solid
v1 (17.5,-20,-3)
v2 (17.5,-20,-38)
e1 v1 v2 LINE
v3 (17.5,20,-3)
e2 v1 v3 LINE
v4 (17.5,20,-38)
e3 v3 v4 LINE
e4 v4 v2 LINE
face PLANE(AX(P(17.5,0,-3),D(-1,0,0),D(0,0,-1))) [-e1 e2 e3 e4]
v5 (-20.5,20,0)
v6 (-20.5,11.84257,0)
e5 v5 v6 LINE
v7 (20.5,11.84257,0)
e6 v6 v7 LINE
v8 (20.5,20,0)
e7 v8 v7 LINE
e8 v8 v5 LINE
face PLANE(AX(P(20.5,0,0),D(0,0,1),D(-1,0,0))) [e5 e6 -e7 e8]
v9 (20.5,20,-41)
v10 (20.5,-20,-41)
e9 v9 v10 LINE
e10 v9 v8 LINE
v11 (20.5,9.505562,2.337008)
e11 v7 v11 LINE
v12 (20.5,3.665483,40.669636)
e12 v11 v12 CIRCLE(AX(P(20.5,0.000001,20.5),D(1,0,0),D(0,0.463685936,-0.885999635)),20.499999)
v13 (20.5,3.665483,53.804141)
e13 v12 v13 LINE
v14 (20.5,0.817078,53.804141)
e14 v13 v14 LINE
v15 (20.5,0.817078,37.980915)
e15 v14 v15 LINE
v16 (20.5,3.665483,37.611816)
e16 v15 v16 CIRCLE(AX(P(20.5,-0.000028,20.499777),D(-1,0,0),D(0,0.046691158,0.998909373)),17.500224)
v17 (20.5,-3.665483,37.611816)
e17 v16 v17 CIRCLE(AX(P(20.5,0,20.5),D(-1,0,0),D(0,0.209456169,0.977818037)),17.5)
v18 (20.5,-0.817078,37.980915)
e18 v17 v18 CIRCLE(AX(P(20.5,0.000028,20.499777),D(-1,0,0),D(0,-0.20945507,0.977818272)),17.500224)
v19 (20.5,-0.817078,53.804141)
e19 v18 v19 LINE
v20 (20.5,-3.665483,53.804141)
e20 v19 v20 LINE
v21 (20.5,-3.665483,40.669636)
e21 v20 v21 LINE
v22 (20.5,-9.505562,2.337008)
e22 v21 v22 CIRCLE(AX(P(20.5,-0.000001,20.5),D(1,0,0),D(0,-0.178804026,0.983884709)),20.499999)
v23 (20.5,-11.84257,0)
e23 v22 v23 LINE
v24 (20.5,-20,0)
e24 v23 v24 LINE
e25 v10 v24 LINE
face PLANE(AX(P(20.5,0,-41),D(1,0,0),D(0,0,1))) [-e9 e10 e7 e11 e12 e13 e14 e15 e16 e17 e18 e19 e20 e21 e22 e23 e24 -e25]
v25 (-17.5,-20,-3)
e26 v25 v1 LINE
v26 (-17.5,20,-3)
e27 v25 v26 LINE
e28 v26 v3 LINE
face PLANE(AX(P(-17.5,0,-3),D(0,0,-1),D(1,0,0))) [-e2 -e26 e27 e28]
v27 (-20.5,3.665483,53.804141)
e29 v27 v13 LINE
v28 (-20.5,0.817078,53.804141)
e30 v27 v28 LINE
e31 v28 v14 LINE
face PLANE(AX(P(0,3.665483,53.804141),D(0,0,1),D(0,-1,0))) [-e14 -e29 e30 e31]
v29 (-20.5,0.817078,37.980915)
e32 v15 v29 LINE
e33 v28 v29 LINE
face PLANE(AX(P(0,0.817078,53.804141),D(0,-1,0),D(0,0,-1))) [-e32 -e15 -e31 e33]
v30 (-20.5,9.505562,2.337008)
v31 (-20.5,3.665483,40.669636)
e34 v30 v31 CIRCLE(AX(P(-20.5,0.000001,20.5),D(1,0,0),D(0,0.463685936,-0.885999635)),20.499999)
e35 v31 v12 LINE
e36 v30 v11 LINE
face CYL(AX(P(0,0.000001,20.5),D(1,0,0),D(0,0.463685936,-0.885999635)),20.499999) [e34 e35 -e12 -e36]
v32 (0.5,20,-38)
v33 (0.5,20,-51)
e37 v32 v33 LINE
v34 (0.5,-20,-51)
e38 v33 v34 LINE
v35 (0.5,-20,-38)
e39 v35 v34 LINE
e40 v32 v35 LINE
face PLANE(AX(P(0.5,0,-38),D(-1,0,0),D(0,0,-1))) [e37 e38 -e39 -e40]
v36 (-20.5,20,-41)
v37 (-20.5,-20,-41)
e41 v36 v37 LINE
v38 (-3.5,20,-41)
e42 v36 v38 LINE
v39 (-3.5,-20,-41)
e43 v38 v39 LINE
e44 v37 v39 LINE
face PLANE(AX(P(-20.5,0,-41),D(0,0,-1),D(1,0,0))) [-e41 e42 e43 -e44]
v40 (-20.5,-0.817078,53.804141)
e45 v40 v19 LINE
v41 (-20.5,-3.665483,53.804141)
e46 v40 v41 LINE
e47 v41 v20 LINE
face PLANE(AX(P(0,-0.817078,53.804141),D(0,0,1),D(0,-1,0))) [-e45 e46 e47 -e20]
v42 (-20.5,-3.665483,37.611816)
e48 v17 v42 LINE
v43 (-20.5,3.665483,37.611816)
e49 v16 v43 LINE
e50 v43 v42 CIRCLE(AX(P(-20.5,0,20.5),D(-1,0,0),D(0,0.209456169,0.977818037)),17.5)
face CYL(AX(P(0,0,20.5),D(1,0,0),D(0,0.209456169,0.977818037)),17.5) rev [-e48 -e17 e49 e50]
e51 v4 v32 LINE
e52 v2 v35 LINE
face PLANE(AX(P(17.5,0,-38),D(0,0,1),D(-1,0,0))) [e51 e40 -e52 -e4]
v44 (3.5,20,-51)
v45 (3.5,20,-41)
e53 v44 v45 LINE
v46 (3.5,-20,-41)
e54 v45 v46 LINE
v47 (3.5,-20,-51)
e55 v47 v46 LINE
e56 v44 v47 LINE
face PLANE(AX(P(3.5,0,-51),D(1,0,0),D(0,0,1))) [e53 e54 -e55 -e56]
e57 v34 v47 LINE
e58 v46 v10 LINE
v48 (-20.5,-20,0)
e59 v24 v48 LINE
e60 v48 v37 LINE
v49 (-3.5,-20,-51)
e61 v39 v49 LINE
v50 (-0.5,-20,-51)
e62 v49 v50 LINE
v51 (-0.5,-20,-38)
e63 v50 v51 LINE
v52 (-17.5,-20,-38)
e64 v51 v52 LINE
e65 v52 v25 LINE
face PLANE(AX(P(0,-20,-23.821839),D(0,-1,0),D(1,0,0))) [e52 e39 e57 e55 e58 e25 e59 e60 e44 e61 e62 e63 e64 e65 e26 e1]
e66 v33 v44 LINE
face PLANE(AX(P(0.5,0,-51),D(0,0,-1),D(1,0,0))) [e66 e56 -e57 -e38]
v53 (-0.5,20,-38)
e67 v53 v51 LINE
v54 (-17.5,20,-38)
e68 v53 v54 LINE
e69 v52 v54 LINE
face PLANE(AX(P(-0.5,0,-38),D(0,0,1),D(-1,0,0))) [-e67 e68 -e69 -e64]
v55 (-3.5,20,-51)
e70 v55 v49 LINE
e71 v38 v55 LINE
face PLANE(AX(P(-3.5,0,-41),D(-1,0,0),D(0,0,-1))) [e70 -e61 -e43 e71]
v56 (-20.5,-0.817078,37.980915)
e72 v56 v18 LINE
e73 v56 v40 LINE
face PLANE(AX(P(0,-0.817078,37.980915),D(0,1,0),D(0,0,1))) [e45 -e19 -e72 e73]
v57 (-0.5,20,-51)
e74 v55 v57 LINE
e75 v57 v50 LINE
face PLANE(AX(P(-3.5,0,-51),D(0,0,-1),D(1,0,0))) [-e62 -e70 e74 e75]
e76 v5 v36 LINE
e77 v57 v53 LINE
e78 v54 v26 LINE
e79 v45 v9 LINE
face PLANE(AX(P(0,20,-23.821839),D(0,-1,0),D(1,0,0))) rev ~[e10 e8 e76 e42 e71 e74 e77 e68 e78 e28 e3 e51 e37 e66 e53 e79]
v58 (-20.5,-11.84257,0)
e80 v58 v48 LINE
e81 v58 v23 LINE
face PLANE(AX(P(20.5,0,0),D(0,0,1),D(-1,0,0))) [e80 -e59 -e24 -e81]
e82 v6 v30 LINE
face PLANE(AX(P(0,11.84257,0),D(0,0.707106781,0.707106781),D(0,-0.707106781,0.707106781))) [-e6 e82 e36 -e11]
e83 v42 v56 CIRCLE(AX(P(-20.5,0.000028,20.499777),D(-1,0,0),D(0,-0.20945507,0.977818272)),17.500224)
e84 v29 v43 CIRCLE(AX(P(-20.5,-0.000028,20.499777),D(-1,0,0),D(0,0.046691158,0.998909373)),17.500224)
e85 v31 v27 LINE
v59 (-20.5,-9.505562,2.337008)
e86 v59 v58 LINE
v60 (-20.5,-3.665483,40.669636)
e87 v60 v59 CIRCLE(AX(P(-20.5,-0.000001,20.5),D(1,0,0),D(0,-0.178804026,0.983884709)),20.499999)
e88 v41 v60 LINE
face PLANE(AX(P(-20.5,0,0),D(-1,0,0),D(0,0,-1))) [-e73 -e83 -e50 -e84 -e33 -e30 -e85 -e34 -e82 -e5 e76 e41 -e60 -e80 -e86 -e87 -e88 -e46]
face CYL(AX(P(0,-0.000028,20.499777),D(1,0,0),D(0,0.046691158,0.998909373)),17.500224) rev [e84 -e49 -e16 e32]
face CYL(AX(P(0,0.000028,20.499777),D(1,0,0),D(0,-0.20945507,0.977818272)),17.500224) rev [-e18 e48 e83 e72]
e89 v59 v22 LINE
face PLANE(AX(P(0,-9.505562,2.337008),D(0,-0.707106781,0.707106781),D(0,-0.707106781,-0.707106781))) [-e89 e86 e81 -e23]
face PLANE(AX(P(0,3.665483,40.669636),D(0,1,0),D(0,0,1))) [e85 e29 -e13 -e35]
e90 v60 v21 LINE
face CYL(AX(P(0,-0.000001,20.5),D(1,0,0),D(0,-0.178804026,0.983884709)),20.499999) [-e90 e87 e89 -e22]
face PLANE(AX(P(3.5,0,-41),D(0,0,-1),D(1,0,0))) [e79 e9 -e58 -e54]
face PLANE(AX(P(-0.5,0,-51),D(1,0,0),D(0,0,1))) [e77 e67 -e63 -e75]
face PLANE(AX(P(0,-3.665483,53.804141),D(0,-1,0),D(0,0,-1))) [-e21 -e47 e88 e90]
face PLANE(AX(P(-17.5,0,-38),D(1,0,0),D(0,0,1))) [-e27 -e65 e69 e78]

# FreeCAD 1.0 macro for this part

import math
import FreeCAD as App
import Part
import Sketcher


def add_polygon(sketch, points):
    """Adds a closed chain of lines whose ends are joined by coincident constraints."""
    first, n = sketch.GeometryCount, len(points)
    for a, b in zip(points, points[1:] + points[:1]):
        sketch.addGeometry(Part.LineSegment(App.Vector(*a, 0), App.Vector(*b, 0)), False)
    for i in range(n):
        sketch.addConstraint(Sketcher.Constraint("Coincident", first + i, 2, first + (i + 1) % n, 1))

doc = App.newDocument("Part")
body = doc.addObject("PartDesign::Body", "Body")

# Sketch on XZ plane
sketch1 = doc.addObject("Sketcher::SketchObject", "Sketch")
body.addObject(sketch1)
sketch1.AttachmentSupport = (doc.XZ_Plane, [""])
sketch1.MapMode = "FlatFace"
add_polygon(sketch1, [(17.5, -3), (17.5, -38), (0.5, -38), (0.5, -51), (3.5, -51), (3.5, -41), (20.5, -41), (20.5, 0), (-20.5, 0), (-20.5, -41), (-3.5, -41), (-3.5, -51), (-0.5, -51), (-0.5, -38), (-17.5, -38), (-17.5, -3)])  # lines 0-15
sketch1.addConstraint(Sketcher.Constraint("Vertical", 0))
sketch1.addConstraint(Sketcher.Constraint("Horizontal", 1))
sketch1.addConstraint(Sketcher.Constraint("Vertical", 2))
sketch1.addConstraint(Sketcher.Constraint("Horizontal", 3))
sketch1.addConstraint(Sketcher.Constraint("Vertical", 4))
sketch1.addConstraint(Sketcher.Constraint("Horizontal", 5))
sketch1.addConstraint(Sketcher.Constraint("Vertical", 6))
sketch1.addConstraint(Sketcher.Constraint("Horizontal", 7))
sketch1.addConstraint(Sketcher.Constraint("Vertical", 8))
sketch1.addConstraint(Sketcher.Constraint("Horizontal", 9))
sketch1.addConstraint(Sketcher.Constraint("Vertical", 10))
sketch1.addConstraint(Sketcher.Constraint("Horizontal", 11))
sketch1.addConstraint(Sketcher.Constraint("Vertical", 12))
sketch1.addConstraint(Sketcher.Constraint("Horizontal", 13))
sketch1.addConstraint(Sketcher.Constraint("Vertical", 14))
sketch1.addConstraint(Sketcher.Constraint("Horizontal", 15))
sketch1.addConstraint(Sketcher.Constraint("Symmetric", 6, 2, 7, 2, -1, 1))
sketch1.addConstraint(Sketcher.Constraint("Symmetric", 4, 2, 9, 2, -2))
sketch1.addConstraint(Sketcher.Constraint("Symmetric", 2, 2, 11, 2, -2))
sketch1.addConstraint(Sketcher.Constraint("Symmetric", 0, 2, 13, 2, -2))
sketch1.addConstraint(Sketcher.Constraint("Equal", 1, 5))
sketch1.addConstraint(Sketcher.Constraint("Equal", 15, 0))
sketch1.addConstraint(Sketcher.Constraint("Equal", 7, 6))
sketch1.addConstraint(Sketcher.Constraint("DistanceX", 1, 2, 1, 1, 17.0))
sketch1.addConstraint(Sketcher.Constraint("DistanceX", 3, 1, 3, 2, 3.0))
sketch1.addConstraint(Sketcher.Constraint("DistanceX", 7, 2, 7, 1, 41.0))
sketch1.addConstraint(Sketcher.Constraint("DistanceY", 2, 2, 2, 1, 13.0))
sketch1.addConstraint(Sketcher.Constraint("DistanceY", 4, 1, 4, 2, 10.0))
pad1 = doc.addObject("PartDesign::Pad", "Pad")
body.addObject(pad1)
pad1.Profile = sketch1
pad1.Length = 40
pad1.Midplane = True

# Sketch on YZ plane
sketch2 = doc.addObject("Sketcher::SketchObject", "Sketch001")
body.addObject(sketch2)
sketch2.AttachmentSupport = (doc.YZ_Plane, [""])
sketch2.MapMode = "FlatFace"
sketch2.addGeometry(Part.ArcOfCircle(Part.Circle(App.Vector(0, 20.5, 0), App.Vector(0, 0, 1), 17.5), math.radians(92.68), math.radians(102.09)), False)
sketch2.addGeometry(Part.LineSegment(App.Vector(-0.8, 38, 0), App.Vector(-0.8, 53.8, 0)), False)
sketch2.addGeometry(Part.LineSegment(App.Vector(-0.8, 53.8, 0), App.Vector(-3.7, 53.8, 0)), False)
sketch2.addGeometry(Part.LineSegment(App.Vector(-3.7, 53.8, 0), App.Vector(-3.7, 40.7, 0)), False)
sketch2.addGeometry(Part.ArcOfCircle(Part.Circle(App.Vector(0, 20.5, 0), App.Vector(0, 0, 1), 20.5), math.radians(100), math.radians(242)), False)
sketch2.addGeometry(Part.LineSegment(App.Vector(-9.5, 2.3, 0), App.Vector(-11.8, 0, 0)), False)
sketch2.addGeometry(Part.LineSegment(App.Vector(-11.8, 0, 0), App.Vector(11.8, 0, 0)), False)
sketch2.addGeometry(Part.LineSegment(App.Vector(11.8, 0, 0), App.Vector(9.5, 2.3, 0)), False)
sketch2.addGeometry(Part.ArcOfCircle(Part.Circle(App.Vector(0, 20.5, 0), App.Vector(0, 0, 1), 20.5), math.radians(-62), math.radians(80)), False)
sketch2.addGeometry(Part.LineSegment(App.Vector(3.7, 40.7, 0), App.Vector(3.7, 53.8, 0)), False)
sketch2.addGeometry(Part.LineSegment(App.Vector(3.7, 53.8, 0), App.Vector(0.8, 53.8, 0)), False)
sketch2.addGeometry(Part.LineSegment(App.Vector(0.8, 53.8, 0), App.Vector(0.8, 38, 0)), False)
sketch2.addGeometry(Part.ArcOfCircle(Part.Circle(App.Vector(0, 20.5, 0), App.Vector(0, 0, 1), 17.5), math.radians(77.91), math.radians(87.32)), False)
sketch2.addGeometry(Part.ArcOfCircle(Part.Circle(App.Vector(0, 20.5, 0), App.Vector(0, 0, 1), 17.5), math.radians(102), math.radians(438)), False)
sketch2.addConstraint(Sketcher.Constraint("Coincident", 0, 1, 1, 1))
sketch2.addConstraint(Sketcher.Constraint("Coincident", 1, 2, 2, 1))
sketch2.addConstraint(Sketcher.Constraint("Coincident", 2, 2, 3, 1))
sketch2.addConstraint(Sketcher.Constraint("Coincident", 3, 2, 4, 1))
sketch2.addConstraint(Sketcher.Constraint("Coincident", 4, 2, 5, 1))
sketch2.addConstraint(Sketcher.Constraint("Coincident", 5, 2, 6, 1))
sketch2.addConstraint(Sketcher.Constraint("Coincident", 6, 2, 7, 1))
sketch2.addConstraint(Sketcher.Constraint("Coincident", 7, 2, 8, 1))
sketch2.addConstraint(Sketcher.Constraint("Coincident", 8, 2, 9, 1))
sketch2.addConstraint(Sketcher.Constraint("Coincident", 9, 2, 10, 1))
sketch2.addConstraint(Sketcher.Constraint("Coincident", 10, 2, 11, 1))
sketch2.addConstraint(Sketcher.Constraint("Coincident", 11, 2, 12, 2))
sketch2.addConstraint(Sketcher.Constraint("Tangent", 12, 1, 13, 2))
sketch2.addConstraint(Sketcher.Constraint("Tangent", 13, 1, 0, 2))
sketch2.addConstraint(Sketcher.Constraint("Vertical", 1))
sketch2.addConstraint(Sketcher.Constraint("Horizontal", 2))
sketch2.addConstraint(Sketcher.Constraint("Vertical", 3))
sketch2.addConstraint(Sketcher.Constraint("Horizontal", 6))
sketch2.addConstraint(Sketcher.Constraint("Vertical", 9))
sketch2.addConstraint(Sketcher.Constraint("Horizontal", 10))
sketch2.addConstraint(Sketcher.Constraint("Vertical", 11))
sketch2.addConstraint(Sketcher.Constraint("Coincident", 8, 3, 4, 3))
sketch2.addConstraint(Sketcher.Constraint("Coincident", 13, 3, 4, 3))
sketch2.addConstraint(Sketcher.Constraint("Equal", 4, 8))
sketch2.addConstraint(Sketcher.Constraint("Equal", 0, 12))
sketch2.addConstraint(Sketcher.Constraint("Symmetric", 5, 2, 6, 2, -1, 1))
sketch2.addConstraint(Sketcher.Constraint("Symmetric", 4, 2, 7, 2, -2))
sketch2.addConstraint(Sketcher.Constraint("Symmetric", 2, 2, 9, 2, -2))
sketch2.addConstraint(Sketcher.Constraint("Perpendicular", 5, 7))
sketch2.addConstraint(Sketcher.Constraint("Horizontal", 0, 1, 11, 2))
sketch2.addConstraint(Sketcher.Constraint("Horizontal", 12, 1, 13, 1))
sketch2.addConstraint(Sketcher.Constraint("Vertical", 9, 2, 12, 1))
sketch2.addConstraint(Sketcher.Constraint("Radius", 4, 20.499999))
sketch2.addConstraint(Sketcher.Constraint("Radius", 13, 17.5))
sketch2.addConstraint(Sketcher.Constraint("DistanceY", -1, 1, 4, 3, 20.5))
sketch2.addConstraint(Sketcher.Constraint("Radius", 0, 17.500224))
sketch2.addConstraint(Sketcher.Constraint("DistanceX", 6, 1, 6, 2, 23.68514))
sketch2.addConstraint(Sketcher.Constraint("DistanceY", 12, 1, 11, 2, 0.369099))
sketch2.addConstraint(Sketcher.Constraint("DistanceX", 2, 2, 2, 1, 2.848405))
sketch2.addConstraint(Sketcher.Constraint("DistanceY", 1, 1, 1, 2, 15.823226))
pad2 = doc.addObject("PartDesign::Pad", "Pad001")
body.addObject(pad2)
pad2.Profile = sketch2
pad2.Length = 41
pad2.Midplane = True

doc.recompute()
